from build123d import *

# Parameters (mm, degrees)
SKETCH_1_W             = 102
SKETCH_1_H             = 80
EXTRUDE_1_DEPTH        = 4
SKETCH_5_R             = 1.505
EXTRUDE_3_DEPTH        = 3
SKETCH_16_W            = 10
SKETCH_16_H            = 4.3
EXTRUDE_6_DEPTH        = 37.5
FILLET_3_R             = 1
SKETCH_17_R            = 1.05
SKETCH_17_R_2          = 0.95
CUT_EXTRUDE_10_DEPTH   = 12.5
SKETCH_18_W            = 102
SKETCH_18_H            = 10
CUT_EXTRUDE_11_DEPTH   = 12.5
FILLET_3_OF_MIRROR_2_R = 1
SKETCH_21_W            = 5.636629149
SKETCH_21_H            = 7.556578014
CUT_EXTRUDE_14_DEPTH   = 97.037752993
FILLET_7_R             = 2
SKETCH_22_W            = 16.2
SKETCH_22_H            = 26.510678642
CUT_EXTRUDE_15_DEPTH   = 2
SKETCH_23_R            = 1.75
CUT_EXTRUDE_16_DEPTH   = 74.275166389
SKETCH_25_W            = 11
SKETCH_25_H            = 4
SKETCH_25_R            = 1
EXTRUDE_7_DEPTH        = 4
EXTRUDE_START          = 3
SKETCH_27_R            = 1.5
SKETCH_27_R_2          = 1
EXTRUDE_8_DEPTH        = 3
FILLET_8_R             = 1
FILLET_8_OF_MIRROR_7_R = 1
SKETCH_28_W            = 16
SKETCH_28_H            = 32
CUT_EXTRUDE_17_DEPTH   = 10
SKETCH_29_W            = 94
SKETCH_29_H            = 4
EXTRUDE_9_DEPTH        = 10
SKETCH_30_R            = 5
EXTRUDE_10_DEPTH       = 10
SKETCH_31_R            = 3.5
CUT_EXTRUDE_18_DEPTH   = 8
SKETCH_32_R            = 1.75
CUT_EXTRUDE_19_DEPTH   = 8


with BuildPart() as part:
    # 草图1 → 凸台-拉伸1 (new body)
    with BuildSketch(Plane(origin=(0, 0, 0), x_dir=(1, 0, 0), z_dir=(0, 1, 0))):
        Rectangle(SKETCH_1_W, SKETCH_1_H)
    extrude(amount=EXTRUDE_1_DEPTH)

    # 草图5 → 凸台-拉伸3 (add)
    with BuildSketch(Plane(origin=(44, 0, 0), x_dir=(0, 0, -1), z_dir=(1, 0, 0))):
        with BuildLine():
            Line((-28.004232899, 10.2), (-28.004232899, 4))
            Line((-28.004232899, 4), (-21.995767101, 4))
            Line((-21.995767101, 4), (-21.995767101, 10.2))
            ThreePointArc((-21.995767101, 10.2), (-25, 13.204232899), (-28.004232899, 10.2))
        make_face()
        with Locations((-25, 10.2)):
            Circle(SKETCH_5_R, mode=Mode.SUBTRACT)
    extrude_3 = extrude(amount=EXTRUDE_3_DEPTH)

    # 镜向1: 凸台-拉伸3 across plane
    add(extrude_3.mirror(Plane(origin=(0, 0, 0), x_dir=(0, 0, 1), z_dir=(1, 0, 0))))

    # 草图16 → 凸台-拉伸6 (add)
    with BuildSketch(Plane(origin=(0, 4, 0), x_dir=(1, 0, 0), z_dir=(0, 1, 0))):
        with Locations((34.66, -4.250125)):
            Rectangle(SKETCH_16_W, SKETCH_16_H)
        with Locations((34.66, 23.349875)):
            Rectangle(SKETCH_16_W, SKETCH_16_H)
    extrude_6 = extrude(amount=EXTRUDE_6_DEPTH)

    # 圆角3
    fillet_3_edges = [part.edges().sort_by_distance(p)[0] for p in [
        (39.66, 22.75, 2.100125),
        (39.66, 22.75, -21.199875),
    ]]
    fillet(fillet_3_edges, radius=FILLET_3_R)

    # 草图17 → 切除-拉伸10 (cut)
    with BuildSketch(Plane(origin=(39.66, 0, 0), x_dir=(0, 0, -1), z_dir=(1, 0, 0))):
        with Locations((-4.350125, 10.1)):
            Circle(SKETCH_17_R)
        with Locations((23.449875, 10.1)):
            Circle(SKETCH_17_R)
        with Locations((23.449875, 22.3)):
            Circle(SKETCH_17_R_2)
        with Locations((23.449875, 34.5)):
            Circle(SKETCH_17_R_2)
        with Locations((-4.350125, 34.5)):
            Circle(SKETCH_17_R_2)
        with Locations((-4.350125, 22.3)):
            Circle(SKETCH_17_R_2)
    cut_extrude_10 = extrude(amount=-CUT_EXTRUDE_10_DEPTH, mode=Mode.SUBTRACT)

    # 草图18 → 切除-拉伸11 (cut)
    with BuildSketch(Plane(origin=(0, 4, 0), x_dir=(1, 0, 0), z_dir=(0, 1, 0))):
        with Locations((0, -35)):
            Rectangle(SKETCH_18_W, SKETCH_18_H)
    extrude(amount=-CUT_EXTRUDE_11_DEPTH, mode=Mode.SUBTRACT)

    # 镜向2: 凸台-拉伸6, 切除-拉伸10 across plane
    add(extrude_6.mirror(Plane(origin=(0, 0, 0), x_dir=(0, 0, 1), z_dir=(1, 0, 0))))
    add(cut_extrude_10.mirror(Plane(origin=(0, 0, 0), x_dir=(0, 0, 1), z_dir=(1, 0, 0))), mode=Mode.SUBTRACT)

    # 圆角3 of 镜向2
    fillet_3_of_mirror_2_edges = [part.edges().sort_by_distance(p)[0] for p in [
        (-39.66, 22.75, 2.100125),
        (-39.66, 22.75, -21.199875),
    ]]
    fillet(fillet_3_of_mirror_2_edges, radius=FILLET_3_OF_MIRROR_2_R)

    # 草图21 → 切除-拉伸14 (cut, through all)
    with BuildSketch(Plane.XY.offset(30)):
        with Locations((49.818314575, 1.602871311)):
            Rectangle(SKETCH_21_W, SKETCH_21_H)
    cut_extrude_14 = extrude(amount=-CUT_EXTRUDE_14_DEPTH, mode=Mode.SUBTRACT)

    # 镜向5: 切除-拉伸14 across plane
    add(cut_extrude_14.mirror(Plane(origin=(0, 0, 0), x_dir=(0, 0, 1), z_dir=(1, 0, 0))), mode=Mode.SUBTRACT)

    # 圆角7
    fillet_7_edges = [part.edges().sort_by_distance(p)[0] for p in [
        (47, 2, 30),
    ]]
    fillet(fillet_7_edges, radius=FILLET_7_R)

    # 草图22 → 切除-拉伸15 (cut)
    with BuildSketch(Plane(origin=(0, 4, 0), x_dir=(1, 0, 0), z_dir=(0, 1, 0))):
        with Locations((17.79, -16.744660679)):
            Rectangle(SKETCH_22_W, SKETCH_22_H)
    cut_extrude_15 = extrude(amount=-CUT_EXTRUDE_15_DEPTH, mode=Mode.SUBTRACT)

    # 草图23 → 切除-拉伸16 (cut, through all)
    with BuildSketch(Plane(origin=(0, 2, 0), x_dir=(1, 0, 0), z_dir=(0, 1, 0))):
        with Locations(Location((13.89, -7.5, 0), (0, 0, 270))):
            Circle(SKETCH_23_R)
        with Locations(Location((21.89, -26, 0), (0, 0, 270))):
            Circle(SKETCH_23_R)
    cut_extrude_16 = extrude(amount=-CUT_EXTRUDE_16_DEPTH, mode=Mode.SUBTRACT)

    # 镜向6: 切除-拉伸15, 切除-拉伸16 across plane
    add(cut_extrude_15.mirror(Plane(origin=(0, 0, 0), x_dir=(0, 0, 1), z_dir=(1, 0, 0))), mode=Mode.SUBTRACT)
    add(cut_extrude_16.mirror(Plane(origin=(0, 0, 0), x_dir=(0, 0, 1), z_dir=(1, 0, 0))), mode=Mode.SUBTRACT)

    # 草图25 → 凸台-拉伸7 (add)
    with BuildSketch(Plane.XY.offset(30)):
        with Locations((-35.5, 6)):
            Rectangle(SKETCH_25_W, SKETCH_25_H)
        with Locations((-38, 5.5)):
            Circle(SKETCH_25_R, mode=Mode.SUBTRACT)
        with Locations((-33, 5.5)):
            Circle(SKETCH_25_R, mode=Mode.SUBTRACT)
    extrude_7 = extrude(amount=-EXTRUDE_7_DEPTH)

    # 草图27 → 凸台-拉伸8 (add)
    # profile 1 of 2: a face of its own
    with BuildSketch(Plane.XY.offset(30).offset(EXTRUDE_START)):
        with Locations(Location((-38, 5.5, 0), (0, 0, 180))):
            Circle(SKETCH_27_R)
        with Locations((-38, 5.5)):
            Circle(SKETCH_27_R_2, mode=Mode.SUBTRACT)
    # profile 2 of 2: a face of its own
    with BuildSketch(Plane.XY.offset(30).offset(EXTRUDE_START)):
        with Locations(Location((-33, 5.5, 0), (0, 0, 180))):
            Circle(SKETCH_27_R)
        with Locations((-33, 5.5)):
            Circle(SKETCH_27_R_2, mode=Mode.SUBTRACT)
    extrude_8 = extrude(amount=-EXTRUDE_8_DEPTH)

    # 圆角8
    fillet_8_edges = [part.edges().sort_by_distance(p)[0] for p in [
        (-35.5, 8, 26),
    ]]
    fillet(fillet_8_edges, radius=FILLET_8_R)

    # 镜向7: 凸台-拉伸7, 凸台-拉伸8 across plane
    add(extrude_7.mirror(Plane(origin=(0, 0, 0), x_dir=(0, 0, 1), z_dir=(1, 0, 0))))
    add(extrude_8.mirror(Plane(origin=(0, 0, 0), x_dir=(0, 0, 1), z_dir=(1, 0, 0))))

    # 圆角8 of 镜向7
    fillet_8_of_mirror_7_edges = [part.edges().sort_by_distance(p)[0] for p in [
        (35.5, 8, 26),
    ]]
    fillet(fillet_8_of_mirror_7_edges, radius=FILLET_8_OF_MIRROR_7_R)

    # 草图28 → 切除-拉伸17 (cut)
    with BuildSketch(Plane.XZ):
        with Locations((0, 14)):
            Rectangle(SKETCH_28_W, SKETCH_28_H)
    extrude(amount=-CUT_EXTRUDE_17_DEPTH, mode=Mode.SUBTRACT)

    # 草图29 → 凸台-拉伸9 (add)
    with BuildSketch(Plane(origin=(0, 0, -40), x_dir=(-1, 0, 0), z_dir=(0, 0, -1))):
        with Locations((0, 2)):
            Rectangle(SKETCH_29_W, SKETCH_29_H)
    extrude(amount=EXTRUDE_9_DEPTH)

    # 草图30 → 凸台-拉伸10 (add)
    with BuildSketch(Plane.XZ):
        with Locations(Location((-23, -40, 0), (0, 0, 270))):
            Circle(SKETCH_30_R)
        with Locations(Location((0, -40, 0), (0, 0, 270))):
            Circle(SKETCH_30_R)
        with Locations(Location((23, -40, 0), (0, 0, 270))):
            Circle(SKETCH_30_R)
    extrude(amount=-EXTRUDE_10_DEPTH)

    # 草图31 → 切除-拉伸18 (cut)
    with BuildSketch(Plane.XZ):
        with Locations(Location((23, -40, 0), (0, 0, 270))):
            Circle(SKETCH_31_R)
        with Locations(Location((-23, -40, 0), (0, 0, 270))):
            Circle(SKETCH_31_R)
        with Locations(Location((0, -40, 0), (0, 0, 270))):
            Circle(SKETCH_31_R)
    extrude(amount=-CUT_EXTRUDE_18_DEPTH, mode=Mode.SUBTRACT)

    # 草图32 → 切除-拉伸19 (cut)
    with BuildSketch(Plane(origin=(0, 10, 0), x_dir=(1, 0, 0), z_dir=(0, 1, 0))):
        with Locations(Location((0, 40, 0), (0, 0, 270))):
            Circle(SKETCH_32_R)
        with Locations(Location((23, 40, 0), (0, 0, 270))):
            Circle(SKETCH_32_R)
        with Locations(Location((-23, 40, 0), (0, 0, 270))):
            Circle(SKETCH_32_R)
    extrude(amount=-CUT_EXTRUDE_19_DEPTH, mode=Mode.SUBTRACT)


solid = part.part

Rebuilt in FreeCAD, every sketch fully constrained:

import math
import FreeCAD as App
import Part
import Sketcher

V = App.Vector


def edges_at(feature, points):
    """Names of the edges that pass closest to the given points."""
    edges = feature.Shape.Edges
    near = lambda p: min(range(len(edges)), key=lambda i: edges[i].distToShape(Part.Vertex(*p))[0])
    return sorted({f"Edge{near(p) + 1}" for p in points})


def add_polygon(sketch, points):
    """Adds a closed chain of lines whose ends are joined by coincident constraints."""
    first, n = sketch.GeometryCount, len(points)
    for a, b in zip(points, points[1:] + points[:1]):
        sketch.addGeometry(Part.LineSegment(App.Vector(*a, 0), App.Vector(*b, 0)), False)
    for i in range(n):
        sketch.addConstraint(Sketcher.Constraint("Coincident", first + i, 2, first + (i + 1) % n, 1))

doc = App.newDocument("Part")
body = doc.addObject("PartDesign::Body", "Body")

# Sketch on XZ plane
sketch1 = body.newObject("Sketcher::SketchObject", "Sketch")
sketch1.AttachmentSupport = (doc.getObject("XZ_Plane"), [""])
sketch1.MapMode = "FlatFace"
add_polygon(sketch1, [(-51, -40), (-51, 40), (51, 40), (51, -40)])  # lines 0-3
sketch1.addConstraint(Sketcher.Constraint("Vertical", 0))
sketch1.addConstraint(Sketcher.Constraint("Horizontal", 1))
sketch1.addConstraint(Sketcher.Constraint("Vertical", 2))
sketch1.addConstraint(Sketcher.Constraint("Horizontal", 3))
sketch1.addConstraint(Sketcher.Constraint("Symmetric", 0, 2, 2, 2, -1, 1))
sketch1.addConstraint(Sketcher.Constraint("DistanceX", 1, 1, 1, 2, 102.0))
sketch1.addConstraint(Sketcher.Constraint("DistanceY", 0, 1, 0, 2, 80.0))
pad1 = body.newObject("PartDesign::Pad", "Pad")
pad1.Profile = sketch1
pad1.Length = 4
pad1.Reversed = True

# Sketch on YZ plane
sketch2 = body.newObject("Sketcher::SketchObject", "Sketch001")
sketch2.AttachmentSupport = (doc.getObject("YZ_Plane"), [""])
sketch2.MapMode = "FlatFace"
sketch2.AttachmentOffset = App.Placement(V(0, 0, 44), App.Rotation())
sketch2.addGeometry(Part.LineSegment(V(10.2, 28.004233, 0), V(4, 28.004233, 0)), False)
sketch2.addGeometry(Part.LineSegment(V(4, 28.004233, 0), V(4, 21.995767, 0)), False)
sketch2.addGeometry(Part.LineSegment(V(4, 21.995767, 0), V(10.2, 21.995767, 0)), False)
sketch2.addGeometry(Part.ArcOfCircle(Part.Circle(V(10.2, 25, 0), V(0, 0, 1), 3.004233), math.radians(-90), math.radians(90)), False)
sketch2.addGeometry(Part.Circle(V(10.2, 25, 0), V(0, 0, 1), 1.505), False)
sketch2.addConstraint(Sketcher.Constraint("Coincident", 0, 2, 1, 1))
sketch2.addConstraint(Sketcher.Constraint("Coincident", 1, 2, 2, 1))
sketch2.addConstraint(Sketcher.Constraint("Tangent", 2, 2, 3, 1))
sketch2.addConstraint(Sketcher.Constraint("Tangent", 3, 2, 0, 1))
sketch2.addConstraint(Sketcher.Constraint("Horizontal", 0))
sketch2.addConstraint(Sketcher.Constraint("Vertical", 1))
sketch2.addConstraint(Sketcher.Constraint("Horizontal", 2))
sketch2.addConstraint(Sketcher.Constraint("Coincident", 4, 3, 3, 3))
sketch2.addConstraint(Sketcher.Constraint("Diameter", 4, 3.01))
sketch2.addConstraint(Sketcher.Constraint("DistanceX", 0, 2, 0, 1, 6.2))
sketch2.addConstraint(Sketcher.Constraint("DistanceY", -1, 1, 3, 3, 25.0))
sketch2.addConstraint(Sketcher.Constraint("DistanceX", -1, 1, 0, 2, 4.0))
sketch2.addConstraint(Sketcher.Constraint("Radius", 3, 3.004233))
pad2 = body.newObject("PartDesign::Pad", "Pad001")
pad2.Profile = sketch2
pad2.Length = 3
doc.recompute()

mirrored = body.newObject("PartDesign::Mirrored", "Mirrored")
mirrored.Originals = [pad2]
mirrored.MirrorPlane = (doc.getObject("YZ_Plane"), [""])
body.Tip = mirrored

# Sketch on XZ plane
sketch3 = body.newObject("Sketcher::SketchObject", "Sketch002")
sketch3.AttachmentSupport = (doc.getObject("XZ_Plane"), [""])
sketch3.MapMode = "FlatFace"
sketch3.AttachmentOffset = App.Placement(V(0, 0, -4), App.Rotation())
add_polygon(sketch3, [(29.66, 2.100125), (29.66, 6.400125), (39.66, 6.400125), (39.66, 2.100125)])  # lines 0-3
add_polygon(sketch3, [(29.66, -25.499875), (29.66, -21.199875), (39.66, -21.199875), (39.66, -25.499875)])  # lines 4-7
sketch3.addConstraint(Sketcher.Constraint("Vertical", 0))
sketch3.addConstraint(Sketcher.Constraint("Horizontal", 1))
sketch3.addConstraint(Sketcher.Constraint("Vertical", 2))
sketch3.addConstraint(Sketcher.Constraint("Horizontal", 3))
sketch3.addConstraint(Sketcher.Constraint("Vertical", 4))
sketch3.addConstraint(Sketcher.Constraint("Horizontal", 5))
sketch3.addConstraint(Sketcher.Constraint("Vertical", 6))
sketch3.addConstraint(Sketcher.Constraint("Horizontal", 7))
sketch3.addConstraint(Sketcher.Constraint("Vertical", 3, 2, 4, 2))
sketch3.addConstraint(Sketcher.Constraint("Vertical", 2, 2, 5, 2))
sketch3.addConstraint(Sketcher.Constraint("Equal", 2, 4))
sketch3.addConstraint(Sketcher.Constraint("DistanceX", 1, 1, 1, 2, 10.0))
sketch3.addConstraint(Sketcher.Constraint("DistanceY", 0, 1, 0, 2, 4.3))
sketch3.addConstraint(Sketcher.Constraint("DistanceY", 4, 2, 3, 2, 23.3))
sketch3.addConstraint(Sketcher.Constraint("DistanceX", -1, 1, 0, 2, 29.66))
sketch3.addConstraint(Sketcher.Constraint("DistanceY", -1, 1, 0, 2, 6.400125))
pad3 = body.newObject("PartDesign::Pad", "Pad002")
pad3.Profile = sketch3
pad3.Length = 37.5
pad3.Reversed = True
doc.recompute()

fillet = body.newObject("PartDesign::Fillet", "Fillet")
fillet.Base = (pad3, edges_at(pad3, [(39.66, 22.75, 2.1), (39.66, 22.75, -21.2)]))
fillet.Radius = 1

# Sketch on YZ plane
sketch4 = body.newObject("Sketcher::SketchObject", "Sketch003")
sketch4.AttachmentSupport = (doc.getObject("YZ_Plane"), [""])
sketch4.MapMode = "FlatFace"
sketch4.AttachmentOffset = App.Placement(V(0, 0, 39.66), App.Rotation())
sketch4.addGeometry(Part.Circle(V(10.1, 4.350125, 0), V(0, 0, 1), 1.05), False)
sketch4.addGeometry(Part.Circle(V(10.1, -23.449875, 0), V(0, 0, 1), 1.05), False)
sketch4.addGeometry(Part.Circle(V(22.3, -23.449875, 0), V(0, 0, 1), 0.95), False)
sketch4.addGeometry(Part.Circle(V(34.5, -23.449875, 0), V(0, 0, 1), 0.95), False)
sketch4.addGeometry(Part.Circle(V(34.5, 4.350125, 0), V(0, 0, 1), 0.95), False)
sketch4.addGeometry(Part.Circle(V(22.3, 4.350125, 0), V(0, 0, 1), 0.95), False)
sketch4.addConstraint(Sketcher.Constraint("Equal", 0, 1))
sketch4.addConstraint(Sketcher.Constraint("Equal", 2, 3))
sketch4.addConstraint(Sketcher.Constraint("Equal", 3, 4))
sketch4.addConstraint(Sketcher.Constraint("Equal", 4, 5))
sketch4.addConstraint(Sketcher.Constraint("Horizontal", 1, 3, 2, 3))
sketch4.addConstraint(Sketcher.Constraint("Horizontal", 2, 3, 3, 3))
sketch4.addConstraint(Sketcher.Constraint("Horizontal", 0, 3, 4, 3))
sketch4.addConstraint(Sketcher.Constraint("Horizontal", 4, 3, 5, 3))
sketch4.addConstraint(Sketcher.Constraint("Vertical", 0, 3, 1, 3))
sketch4.addConstraint(Sketcher.Constraint("Vertical", 3, 3, 4, 3))
sketch4.addConstraint(Sketcher.Constraint("Vertical", 2, 3, 5, 3))
sketch4.addConstraint(Sketcher.Constraint("Diameter", 0, 2.1))
sketch4.addConstraint(Sketcher.Constraint("Diameter", 2, 1.9))
sketch4.addConstraint(Sketcher.Constraint("DistanceX", -1, 1, 0, 3, 10.1))
sketch4.addConstraint(Sketcher.Constraint("DistanceX", -1, 1, 2, 3, 22.3))
sketch4.addConstraint(Sketcher.Constraint("DistanceX", -1, 1, 3, 3, 34.5))
sketch4.addConstraint(Sketcher.Constraint("DistanceY", 1, 3, 0, 3, 27.8))
sketch4.addConstraint(Sketcher.Constraint("DistanceY", -1, 1, 0, 3, 4.350125))
pocket1 = body.newObject("PartDesign::Pocket", "Pocket")
pocket1.Profile = sketch4
pocket1.Length = 12.5

# Sketch on XZ plane
sketch5 = body.newObject("Sketcher::SketchObject", "Sketch004")
sketch5.AttachmentSupport = (doc.getObject("XZ_Plane"), [""])
sketch5.MapMode = "FlatFace"
sketch5.AttachmentOffset = App.Placement(V(0, 0, -4), App.Rotation())
add_polygon(sketch5, [(-51, 30), (-51, 40), (51, 40), (51, 30)])  # lines 0-3
sketch5.addConstraint(Sketcher.Constraint("Vertical", 0))
sketch5.addConstraint(Sketcher.Constraint("Horizontal", 1))
sketch5.addConstraint(Sketcher.Constraint("Vertical", 2))
sketch5.addConstraint(Sketcher.Constraint("Horizontal", 3))
sketch5.addConstraint(Sketcher.Constraint("DistanceX", 1, 1, 1, 2, 102.0))
sketch5.addConstraint(Sketcher.Constraint("DistanceY", 0, 1, 0, 2, 10.0))
sketch5.addConstraint(Sketcher.Constraint("DistanceX", 0, 2, -1, 1, 51.0))
sketch5.addConstraint(Sketcher.Constraint("DistanceY", -1, 1, 0, 2, 40.0))
pocket2 = body.newObject("PartDesign::Pocket", "Pocket001")
pocket2.Profile = sketch5
pocket2.Length = 12.5
pocket2.Reversed = True
doc.recompute()

mirrored2 = body.newObject("PartDesign::Mirrored", "Mirrored001")
mirrored2.Originals = [pad3, pocket1]
mirrored2.MirrorPlane = (doc.getObject("YZ_Plane"), [""])
body.Tip = mirrored2
doc.recompute()

fillet2 = body.newObject("PartDesign::Fillet", "Fillet001")
fillet2.Base = (mirrored2, edges_at(mirrored2, [(-39.66, 22.75, 2.1), (-39.66, 22.75, -21.2)]))
fillet2.Radius = 1

# Sketch on XY plane
sketch6 = body.newObject("Sketcher::SketchObject", "Sketch005")
sketch6.AttachmentSupport = (doc.getObject("XY_Plane"), [""])
sketch6.MapMode = "FlatFace"
sketch6.AttachmentOffset = App.Placement(V(0, 0, 30), App.Rotation())
add_polygon(sketch6, [(47, 5.38116), (47, -2.175418), (52.636629, -2.175418), (52.636629, 5.38116)])  # lines 0-3
sketch6.addConstraint(Sketcher.Constraint("Vertical", 0))
sketch6.addConstraint(Sketcher.Constraint("Horizontal", 1))
sketch6.addConstraint(Sketcher.Constraint("Vertical", 2))
sketch6.addConstraint(Sketcher.Constraint("Horizontal", 3))
sketch6.addConstraint(Sketcher.Constraint("DistanceX", -1, 1, 0, 2, 47.0))
sketch6.addConstraint(Sketcher.Constraint("DistanceX", 1, 1, 1, 2, 5.636629))
sketch6.addConstraint(Sketcher.Constraint("DistanceY", 0, 2, 0, 1, 7.556578))
sketch6.addConstraint(Sketcher.Constraint("DistanceY", -1, 1, 2, 2, 5.38116))
pocket3 = body.newObject("PartDesign::Pocket", "Pocket002")
pocket3.Profile = sketch6
pocket3.Type = "ThroughAll"
doc.recompute()

mirrored3 = body.newObject("PartDesign::Mirrored", "Mirrored002")
mirrored3.Originals = [pocket3]
mirrored3.MirrorPlane = (doc.getObject("YZ_Plane"), [""])
body.Tip = mirrored3
doc.recompute()

fillet3 = body.newObject("PartDesign::Fillet", "Fillet002")
fillet3.Base = (mirrored3, edges_at(mirrored3, [(47, 2, 30)]))
fillet3.Radius = 2

# Sketch on XZ plane
sketch7 = body.newObject("Sketcher::SketchObject", "Sketch006")
sketch7.AttachmentSupport = (doc.getObject("XZ_Plane"), [""])
sketch7.MapMode = "FlatFace"
sketch7.AttachmentOffset = App.Placement(V(0, 0, -4), App.Rotation())
add_polygon(sketch7, [(9.69, 3.489321), (9.69, 30), (25.89, 30), (25.89, 3.489321)])  # lines 0-3
sketch7.addConstraint(Sketcher.Constraint("Vertical", 0))
sketch7.addConstraint(Sketcher.Constraint("Horizontal", 1))
sketch7.addConstraint(Sketcher.Constraint("Vertical", 2))
sketch7.addConstraint(Sketcher.Constraint("Horizontal", 3))
sketch7.addConstraint(Sketcher.Constraint("DistanceX", 1, 1, 1, 2, 16.2))
sketch7.addConstraint(Sketcher.Constraint("DistanceY", -1, 1, 0, 2, 30.0))
sketch7.addConstraint(Sketcher.Constraint("DistanceX", -1, 1, 0, 2, 9.69))
sketch7.addConstraint(Sketcher.Constraint("DistanceY", 0, 1, 0, 2, 26.510679))
pocket4 = body.newObject("PartDesign::Pocket", "Pocket003")
pocket4.Profile = sketch7
pocket4.Length = 2
pocket4.Reversed = True

# Sketch on XZ plane
sketch8 = body.newObject("Sketcher::SketchObject", "Sketch007")
sketch8.AttachmentSupport = (doc.getObject("XZ_Plane"), [""])
sketch8.MapMode = "FlatFace"
sketch8.AttachmentOffset = App.Placement(V(0, 0, -2), App.Rotation())
sketch8.addGeometry(Part.Circle(V(13.89, 7.5, 0), V(0, 0, 1), 1.75), False)
sketch8.addGeometry(Part.Circle(V(21.89, 26, 0), V(0, 0, 1), 1.75), False)
sketch8.addConstraint(Sketcher.Constraint("Equal", 0, 1))
sketch8.addConstraint(Sketcher.Constraint("Diameter", 0, 3.5))
sketch8.addConstraint(Sketcher.Constraint("DistanceY", -1, 1, 1, 3, 26.0))
sketch8.addConstraint(Sketcher.Constraint("DistanceX", 0, 3, 1, 3, 8.0))
sketch8.addConstraint(Sketcher.Constraint("DistanceY", -1, 1, 0, 3, 7.5))
sketch8.addConstraint(Sketcher.Constraint("DistanceX", -1, 1, 0, 3, 13.89))
pocket5 = body.newObject("PartDesign::Pocket", "Pocket004")
pocket5.Profile = sketch8
pocket5.Type = "ThroughAll"
pocket5.Reversed = True
doc.recompute()

mirrored4 = body.newObject("PartDesign::Mirrored", "Mirrored003")
mirrored4.Originals = [pocket4, pocket5]
mirrored4.MirrorPlane = (doc.getObject("YZ_Plane"), [""])
body.Tip = mirrored4

# Sketch on XY plane
sketch9 = body.newObject("Sketcher::SketchObject", "Sketch008")
sketch9.AttachmentSupport = (doc.getObject("XY_Plane"), [""])
sketch9.MapMode = "FlatFace"
sketch9.AttachmentOffset = App.Placement(V(0, 0, 30), App.Rotation())
add_polygon(sketch9, [(-41, 8), (-41, 4), (-30, 4), (-30, 8)])  # lines 0-3
sketch9.addGeometry(Part.Circle(V(-38, 5.5, 0), V(0, 0, 1), 1), False)  # 4
sketch9.addGeometry(Part.Circle(V(-33, 5.5, 0), V(0, 0, 1), 1), False)  # 5
sketch9.addConstraint(Sketcher.Constraint("Vertical", 0))
sketch9.addConstraint(Sketcher.Constraint("Horizontal", 1))
sketch9.addConstraint(Sketcher.Constraint("Vertical", 2))
sketch9.addConstraint(Sketcher.Constraint("Horizontal", 3))
sketch9.addConstraint(Sketcher.Constraint("Equal", 4, 5))
sketch9.addConstraint(Sketcher.Constraint("Horizontal", 4, 3, 5, 3))
sketch9.addConstraint(Sketcher.Constraint("Diameter", 4, 2.0))
sketch9.addConstraint(Sketcher.Constraint("DistanceX", 1, 1, 1, 2, 11.0))
sketch9.addConstraint(Sketcher.Constraint("DistanceY", 0, 2, 0, 1, 4.0))
sketch9.addConstraint(Sketcher.Constraint("DistanceX", 4, 3, -1, 1, 38.0))
sketch9.addConstraint(Sketcher.Constraint("DistanceX", 5, 3, -1, 1, 33.0))
sketch9.addConstraint(Sketcher.Constraint("DistanceX", 0, 2, -1, 1, 41.0))
sketch9.addConstraint(Sketcher.Constraint("DistanceY", -1, 1, 0, 2, 4.0))
sketch9.addConstraint(Sketcher.Constraint("DistanceY", -1, 1, 4, 3, 5.5))
pad4 = body.newObject("PartDesign::Pad", "Pad003")
pad4.Profile = sketch9
pad4.Length = 4
pad4.Reversed = True

# Sketch on XY plane
sketch10 = body.newObject("Sketcher::SketchObject", "Sketch009")
sketch10.AttachmentSupport = (doc.getObject("XY_Plane"), [""])
sketch10.MapMode = "FlatFace"
sketch10.AttachmentOffset = App.Placement(V(0, 0, 33), App.Rotation())
sketch10.addGeometry(Part.Circle(V(-38, 5.5, 0), V(0, 0, 1), 1.5), False)
sketch10.addGeometry(Part.Circle(V(-38, 5.5, 0), V(0, 0, 1), 1), False)
sketch10.addGeometry(Part.Circle(V(-33, 5.5, 0), V(0, 0, 1), 1.5), False)
sketch10.addGeometry(Part.Circle(V(-33, 5.5, 0), V(0, 0, 1), 1), False)
sketch10.addConstraint(Sketcher.Constraint("Coincident", 1, 3, 0, 3))
sketch10.addConstraint(Sketcher.Constraint("Coincident", 3, 3, 2, 3))
sketch10.addConstraint(Sketcher.Constraint("Equal", 0, 2))
sketch10.addConstraint(Sketcher.Constraint("Equal", 1, 3))
sketch10.addConstraint(Sketcher.Constraint("Horizontal", 1, 3, 2, 3))
sketch10.addConstraint(Sketcher.Constraint("Diameter", 0, 3.0))
sketch10.addConstraint(Sketcher.Constraint("Diameter", 1, 2.0))
sketch10.addConstraint(Sketcher.Constraint("DistanceX", 0, 3, -1, 1, 38.0))
sketch10.addConstraint(Sketcher.Constraint("DistanceX", 2, 3, -1, 1, 33.0))
sketch10.addConstraint(Sketcher.Constraint("DistanceY", -1, 1, 0, 3, 5.5))
pad5 = body.newObject("PartDesign::Pad", "Pad004")
pad5.Profile = sketch10
pad5.Length = 3
pad5.Reversed = True
doc.recompute()

fillet4 = body.newObject("PartDesign::Fillet", "Fillet003")
fillet4.Base = (pad5, edges_at(pad5, [(-35.5, 8, 26)]))
fillet4.Radius = 1
doc.recompute()

mirrored5 = body.newObject("PartDesign::Mirrored", "Mirrored004")
mirrored5.Originals = [pad4, pad5]
mirrored5.MirrorPlane = (doc.getObject("YZ_Plane"), [""])
body.Tip = mirrored5
doc.recompute()

fillet5 = body.newObject("PartDesign::Fillet", "Fillet004")
fillet5.Base = (mirrored5, edges_at(mirrored5, [(35.5, 8, 26)]))
fillet5.Radius = 1

# Sketch on XZ plane
sketch11 = body.newObject("Sketcher::SketchObject", "Sketch010")
sketch11.AttachmentSupport = (doc.getObject("XZ_Plane"), [""])
sketch11.MapMode = "FlatFace"
add_polygon(sketch11, [(-8, 30), (-8, -2), (8, -2), (8, 30)])  # lines 0-3
sketch11.addConstraint(Sketcher.Constraint("Vertical", 0))
sketch11.addConstraint(Sketcher.Constraint("Horizontal", 1))
sketch11.addConstraint(Sketcher.Constraint("Vertical", 2))
sketch11.addConstraint(Sketcher.Constraint("Horizontal", 3))
sketch11.addConstraint(Sketcher.Constraint("DistanceX", 1, 1, 1, 2, 16.0))
sketch11.addConstraint(Sketcher.Constraint("DistanceY", 0, 2, 0, 1, 32.0))
sketch11.addConstraint(Sketcher.Constraint("DistanceX", 0, 2, -1, 1, 8.0))
sketch11.addConstraint(Sketcher.Constraint("DistanceY", 0, 2, -1, 1, 2.0))
pocket6 = body.newObject("PartDesign::Pocket", "Pocket005")
pocket6.Profile = sketch11
pocket6.Length = 10

# Sketch on XY plane
sketch12 = body.newObject("Sketcher::SketchObject", "Sketch011")
sketch12.AttachmentSupport = (doc.getObject("XY_Plane"), [""])
sketch12.MapMode = "FlatFace"
sketch12.AttachmentOffset = App.Placement(V(0, 0, -40), App.Rotation())
add_polygon(sketch12, [(47, 4), (47, 0), (-47, 0), (-47, 4)])  # lines 0-3
sketch12.addConstraint(Sketcher.Constraint("Vertical", 0))
sketch12.addConstraint(Sketcher.Constraint("Horizontal", 1))
sketch12.addConstraint(Sketcher.Constraint("Vertical", 2))
sketch12.addConstraint(Sketcher.Constraint("Horizontal", 3))
sketch12.addConstraint(Sketcher.Constraint("Symmetric", 0, 2, 1, 2, -1, 1))
sketch12.addConstraint(Sketcher.Constraint("DistanceX", 1, 2, 1, 1, 94.0))
sketch12.addConstraint(Sketcher.Constraint("DistanceY", 0, 2, 0, 1, 4.0))
pad6 = body.newObject("PartDesign::Pad", "Pad005")
pad6.Profile = sketch12
pad6.Length = 10
pad6.Reversed = True

# Sketch on XZ plane
sketch13 = body.newObject("Sketcher::SketchObject", "Sketch012")
sketch13.AttachmentSupport = (doc.getObject("XZ_Plane"), [""])
sketch13.MapMode = "FlatFace"
sketch13.addGeometry(Part.Circle(V(-23, -40, 0), V(0, 0, 1), 5), False)
sketch13.addGeometry(Part.Circle(V(0, -40, 0), V(0, 0, 1), 5), False)
sketch13.addGeometry(Part.Circle(V(23, -40, 0), V(0, 0, 1), 5), False)
sketch13.addConstraint(Sketcher.Constraint("Equal", 0, 1))
sketch13.addConstraint(Sketcher.Constraint("Equal", 1, 2))
sketch13.addConstraint(Sketcher.Constraint("Symmetric", 0, 3, 2, 3, -2))
sketch13.addConstraint(Sketcher.Constraint("PointOnObject", 1, 3, -2))
sketch13.addConstraint(Sketcher.Constraint("Horizontal", 0, 3, 1, 3))
sketch13.addConstraint(Sketcher.Constraint("Diameter", 0, 10.0))
sketch13.addConstraint(Sketcher.Constraint("DistanceX", 0, 3, -1, 1, 23.0))
sketch13.addConstraint(Sketcher.Constraint("DistanceY", 0, 3, -1, 1, 40.0))
pad7 = body.newObject("PartDesign::Pad", "Pad006")
pad7.Profile = sketch13
pad7.Length = 10
pad7.Reversed = True

# Sketch on XZ plane
sketch14 = body.newObject("Sketcher::SketchObject", "Sketch013")
sketch14.AttachmentSupport = (doc.getObject("XZ_Plane"), [""])
sketch14.MapMode = "FlatFace"
sketch14.addGeometry(Part.Circle(V(23, -40, 0), V(0, 0, 1), 3.5), False)
sketch14.addGeometry(Part.Circle(V(-23, -40, 0), V(0, 0, 1), 3.5), False)
sketch14.addGeometry(Part.Circle(V(0, -40, 0), V(0, 0, 1), 3.5), False)
sketch14.addConstraint(Sketcher.Constraint("Equal", 0, 1))
sketch14.addConstraint(Sketcher.Constraint("Equal", 1, 2))
sketch14.addConstraint(Sketcher.Constraint("Symmetric", 0, 3, 1, 3, -2))
sketch14.addConstraint(Sketcher.Constraint("PointOnObject", 2, 3, -2))
sketch14.addConstraint(Sketcher.Constraint("Horizontal", 1, 3, 2, 3))
sketch14.addConstraint(Sketcher.Constraint("Diameter", 0, 7.0))
sketch14.addConstraint(Sketcher.Constraint("DistanceX", -1, 1, 0, 3, 23.0))
sketch14.addConstraint(Sketcher.Constraint("DistanceY", 0, 3, -1, 1, 40.0))
pocket7 = body.newObject("PartDesign::Pocket", "Pocket006")
pocket7.Profile = sketch14
pocket7.Length = 8

# Sketch on XZ plane
sketch15 = body.newObject("Sketcher::SketchObject", "Sketch014")
sketch15.AttachmentSupport = (doc.getObject("XZ_Plane"), [""])
sketch15.MapMode = "FlatFace"
sketch15.AttachmentOffset = App.Placement(V(0, 0, -10), App.Rotation())
sketch15.addGeometry(Part.Circle(V(0, -40, 0), V(0, 0, 1), 1.75), False)
sketch15.addGeometry(Part.Circle(V(23, -40, 0), V(0, 0, 1), 1.75), False)
sketch15.addGeometry(Part.Circle(V(-23, -40, 0), V(0, 0, 1), 1.75), False)
sketch15.addConstraint(Sketcher.Constraint("Equal", 0, 1))
sketch15.addConstraint(Sketcher.Constraint("Equal", 1, 2))
sketch15.addConstraint(Sketcher.Constraint("Symmetric", 1, 3, 2, 3, -2))
sketch15.addConstraint(Sketcher.Constraint("PointOnObject", 0, 3, -2))
sketch15.addConstraint(Sketcher.Constraint("Horizontal", 0, 3, 1, 3))
sketch15.addConstraint(Sketcher.Constraint("Diameter", 0, 3.5))
sketch15.addConstraint(Sketcher.Constraint("DistanceY", 0, 3, -1, 1, 40.0))
sketch15.addConstraint(Sketcher.Constraint("DistanceX", -1, 1, 1, 3, 23.0))
pocket8 = body.newObject("PartDesign::Pocket", "Pocket007")
pocket8.Profile = sketch15
pocket8.Length = 8
pocket8.Reversed = True

doc.recompute()
